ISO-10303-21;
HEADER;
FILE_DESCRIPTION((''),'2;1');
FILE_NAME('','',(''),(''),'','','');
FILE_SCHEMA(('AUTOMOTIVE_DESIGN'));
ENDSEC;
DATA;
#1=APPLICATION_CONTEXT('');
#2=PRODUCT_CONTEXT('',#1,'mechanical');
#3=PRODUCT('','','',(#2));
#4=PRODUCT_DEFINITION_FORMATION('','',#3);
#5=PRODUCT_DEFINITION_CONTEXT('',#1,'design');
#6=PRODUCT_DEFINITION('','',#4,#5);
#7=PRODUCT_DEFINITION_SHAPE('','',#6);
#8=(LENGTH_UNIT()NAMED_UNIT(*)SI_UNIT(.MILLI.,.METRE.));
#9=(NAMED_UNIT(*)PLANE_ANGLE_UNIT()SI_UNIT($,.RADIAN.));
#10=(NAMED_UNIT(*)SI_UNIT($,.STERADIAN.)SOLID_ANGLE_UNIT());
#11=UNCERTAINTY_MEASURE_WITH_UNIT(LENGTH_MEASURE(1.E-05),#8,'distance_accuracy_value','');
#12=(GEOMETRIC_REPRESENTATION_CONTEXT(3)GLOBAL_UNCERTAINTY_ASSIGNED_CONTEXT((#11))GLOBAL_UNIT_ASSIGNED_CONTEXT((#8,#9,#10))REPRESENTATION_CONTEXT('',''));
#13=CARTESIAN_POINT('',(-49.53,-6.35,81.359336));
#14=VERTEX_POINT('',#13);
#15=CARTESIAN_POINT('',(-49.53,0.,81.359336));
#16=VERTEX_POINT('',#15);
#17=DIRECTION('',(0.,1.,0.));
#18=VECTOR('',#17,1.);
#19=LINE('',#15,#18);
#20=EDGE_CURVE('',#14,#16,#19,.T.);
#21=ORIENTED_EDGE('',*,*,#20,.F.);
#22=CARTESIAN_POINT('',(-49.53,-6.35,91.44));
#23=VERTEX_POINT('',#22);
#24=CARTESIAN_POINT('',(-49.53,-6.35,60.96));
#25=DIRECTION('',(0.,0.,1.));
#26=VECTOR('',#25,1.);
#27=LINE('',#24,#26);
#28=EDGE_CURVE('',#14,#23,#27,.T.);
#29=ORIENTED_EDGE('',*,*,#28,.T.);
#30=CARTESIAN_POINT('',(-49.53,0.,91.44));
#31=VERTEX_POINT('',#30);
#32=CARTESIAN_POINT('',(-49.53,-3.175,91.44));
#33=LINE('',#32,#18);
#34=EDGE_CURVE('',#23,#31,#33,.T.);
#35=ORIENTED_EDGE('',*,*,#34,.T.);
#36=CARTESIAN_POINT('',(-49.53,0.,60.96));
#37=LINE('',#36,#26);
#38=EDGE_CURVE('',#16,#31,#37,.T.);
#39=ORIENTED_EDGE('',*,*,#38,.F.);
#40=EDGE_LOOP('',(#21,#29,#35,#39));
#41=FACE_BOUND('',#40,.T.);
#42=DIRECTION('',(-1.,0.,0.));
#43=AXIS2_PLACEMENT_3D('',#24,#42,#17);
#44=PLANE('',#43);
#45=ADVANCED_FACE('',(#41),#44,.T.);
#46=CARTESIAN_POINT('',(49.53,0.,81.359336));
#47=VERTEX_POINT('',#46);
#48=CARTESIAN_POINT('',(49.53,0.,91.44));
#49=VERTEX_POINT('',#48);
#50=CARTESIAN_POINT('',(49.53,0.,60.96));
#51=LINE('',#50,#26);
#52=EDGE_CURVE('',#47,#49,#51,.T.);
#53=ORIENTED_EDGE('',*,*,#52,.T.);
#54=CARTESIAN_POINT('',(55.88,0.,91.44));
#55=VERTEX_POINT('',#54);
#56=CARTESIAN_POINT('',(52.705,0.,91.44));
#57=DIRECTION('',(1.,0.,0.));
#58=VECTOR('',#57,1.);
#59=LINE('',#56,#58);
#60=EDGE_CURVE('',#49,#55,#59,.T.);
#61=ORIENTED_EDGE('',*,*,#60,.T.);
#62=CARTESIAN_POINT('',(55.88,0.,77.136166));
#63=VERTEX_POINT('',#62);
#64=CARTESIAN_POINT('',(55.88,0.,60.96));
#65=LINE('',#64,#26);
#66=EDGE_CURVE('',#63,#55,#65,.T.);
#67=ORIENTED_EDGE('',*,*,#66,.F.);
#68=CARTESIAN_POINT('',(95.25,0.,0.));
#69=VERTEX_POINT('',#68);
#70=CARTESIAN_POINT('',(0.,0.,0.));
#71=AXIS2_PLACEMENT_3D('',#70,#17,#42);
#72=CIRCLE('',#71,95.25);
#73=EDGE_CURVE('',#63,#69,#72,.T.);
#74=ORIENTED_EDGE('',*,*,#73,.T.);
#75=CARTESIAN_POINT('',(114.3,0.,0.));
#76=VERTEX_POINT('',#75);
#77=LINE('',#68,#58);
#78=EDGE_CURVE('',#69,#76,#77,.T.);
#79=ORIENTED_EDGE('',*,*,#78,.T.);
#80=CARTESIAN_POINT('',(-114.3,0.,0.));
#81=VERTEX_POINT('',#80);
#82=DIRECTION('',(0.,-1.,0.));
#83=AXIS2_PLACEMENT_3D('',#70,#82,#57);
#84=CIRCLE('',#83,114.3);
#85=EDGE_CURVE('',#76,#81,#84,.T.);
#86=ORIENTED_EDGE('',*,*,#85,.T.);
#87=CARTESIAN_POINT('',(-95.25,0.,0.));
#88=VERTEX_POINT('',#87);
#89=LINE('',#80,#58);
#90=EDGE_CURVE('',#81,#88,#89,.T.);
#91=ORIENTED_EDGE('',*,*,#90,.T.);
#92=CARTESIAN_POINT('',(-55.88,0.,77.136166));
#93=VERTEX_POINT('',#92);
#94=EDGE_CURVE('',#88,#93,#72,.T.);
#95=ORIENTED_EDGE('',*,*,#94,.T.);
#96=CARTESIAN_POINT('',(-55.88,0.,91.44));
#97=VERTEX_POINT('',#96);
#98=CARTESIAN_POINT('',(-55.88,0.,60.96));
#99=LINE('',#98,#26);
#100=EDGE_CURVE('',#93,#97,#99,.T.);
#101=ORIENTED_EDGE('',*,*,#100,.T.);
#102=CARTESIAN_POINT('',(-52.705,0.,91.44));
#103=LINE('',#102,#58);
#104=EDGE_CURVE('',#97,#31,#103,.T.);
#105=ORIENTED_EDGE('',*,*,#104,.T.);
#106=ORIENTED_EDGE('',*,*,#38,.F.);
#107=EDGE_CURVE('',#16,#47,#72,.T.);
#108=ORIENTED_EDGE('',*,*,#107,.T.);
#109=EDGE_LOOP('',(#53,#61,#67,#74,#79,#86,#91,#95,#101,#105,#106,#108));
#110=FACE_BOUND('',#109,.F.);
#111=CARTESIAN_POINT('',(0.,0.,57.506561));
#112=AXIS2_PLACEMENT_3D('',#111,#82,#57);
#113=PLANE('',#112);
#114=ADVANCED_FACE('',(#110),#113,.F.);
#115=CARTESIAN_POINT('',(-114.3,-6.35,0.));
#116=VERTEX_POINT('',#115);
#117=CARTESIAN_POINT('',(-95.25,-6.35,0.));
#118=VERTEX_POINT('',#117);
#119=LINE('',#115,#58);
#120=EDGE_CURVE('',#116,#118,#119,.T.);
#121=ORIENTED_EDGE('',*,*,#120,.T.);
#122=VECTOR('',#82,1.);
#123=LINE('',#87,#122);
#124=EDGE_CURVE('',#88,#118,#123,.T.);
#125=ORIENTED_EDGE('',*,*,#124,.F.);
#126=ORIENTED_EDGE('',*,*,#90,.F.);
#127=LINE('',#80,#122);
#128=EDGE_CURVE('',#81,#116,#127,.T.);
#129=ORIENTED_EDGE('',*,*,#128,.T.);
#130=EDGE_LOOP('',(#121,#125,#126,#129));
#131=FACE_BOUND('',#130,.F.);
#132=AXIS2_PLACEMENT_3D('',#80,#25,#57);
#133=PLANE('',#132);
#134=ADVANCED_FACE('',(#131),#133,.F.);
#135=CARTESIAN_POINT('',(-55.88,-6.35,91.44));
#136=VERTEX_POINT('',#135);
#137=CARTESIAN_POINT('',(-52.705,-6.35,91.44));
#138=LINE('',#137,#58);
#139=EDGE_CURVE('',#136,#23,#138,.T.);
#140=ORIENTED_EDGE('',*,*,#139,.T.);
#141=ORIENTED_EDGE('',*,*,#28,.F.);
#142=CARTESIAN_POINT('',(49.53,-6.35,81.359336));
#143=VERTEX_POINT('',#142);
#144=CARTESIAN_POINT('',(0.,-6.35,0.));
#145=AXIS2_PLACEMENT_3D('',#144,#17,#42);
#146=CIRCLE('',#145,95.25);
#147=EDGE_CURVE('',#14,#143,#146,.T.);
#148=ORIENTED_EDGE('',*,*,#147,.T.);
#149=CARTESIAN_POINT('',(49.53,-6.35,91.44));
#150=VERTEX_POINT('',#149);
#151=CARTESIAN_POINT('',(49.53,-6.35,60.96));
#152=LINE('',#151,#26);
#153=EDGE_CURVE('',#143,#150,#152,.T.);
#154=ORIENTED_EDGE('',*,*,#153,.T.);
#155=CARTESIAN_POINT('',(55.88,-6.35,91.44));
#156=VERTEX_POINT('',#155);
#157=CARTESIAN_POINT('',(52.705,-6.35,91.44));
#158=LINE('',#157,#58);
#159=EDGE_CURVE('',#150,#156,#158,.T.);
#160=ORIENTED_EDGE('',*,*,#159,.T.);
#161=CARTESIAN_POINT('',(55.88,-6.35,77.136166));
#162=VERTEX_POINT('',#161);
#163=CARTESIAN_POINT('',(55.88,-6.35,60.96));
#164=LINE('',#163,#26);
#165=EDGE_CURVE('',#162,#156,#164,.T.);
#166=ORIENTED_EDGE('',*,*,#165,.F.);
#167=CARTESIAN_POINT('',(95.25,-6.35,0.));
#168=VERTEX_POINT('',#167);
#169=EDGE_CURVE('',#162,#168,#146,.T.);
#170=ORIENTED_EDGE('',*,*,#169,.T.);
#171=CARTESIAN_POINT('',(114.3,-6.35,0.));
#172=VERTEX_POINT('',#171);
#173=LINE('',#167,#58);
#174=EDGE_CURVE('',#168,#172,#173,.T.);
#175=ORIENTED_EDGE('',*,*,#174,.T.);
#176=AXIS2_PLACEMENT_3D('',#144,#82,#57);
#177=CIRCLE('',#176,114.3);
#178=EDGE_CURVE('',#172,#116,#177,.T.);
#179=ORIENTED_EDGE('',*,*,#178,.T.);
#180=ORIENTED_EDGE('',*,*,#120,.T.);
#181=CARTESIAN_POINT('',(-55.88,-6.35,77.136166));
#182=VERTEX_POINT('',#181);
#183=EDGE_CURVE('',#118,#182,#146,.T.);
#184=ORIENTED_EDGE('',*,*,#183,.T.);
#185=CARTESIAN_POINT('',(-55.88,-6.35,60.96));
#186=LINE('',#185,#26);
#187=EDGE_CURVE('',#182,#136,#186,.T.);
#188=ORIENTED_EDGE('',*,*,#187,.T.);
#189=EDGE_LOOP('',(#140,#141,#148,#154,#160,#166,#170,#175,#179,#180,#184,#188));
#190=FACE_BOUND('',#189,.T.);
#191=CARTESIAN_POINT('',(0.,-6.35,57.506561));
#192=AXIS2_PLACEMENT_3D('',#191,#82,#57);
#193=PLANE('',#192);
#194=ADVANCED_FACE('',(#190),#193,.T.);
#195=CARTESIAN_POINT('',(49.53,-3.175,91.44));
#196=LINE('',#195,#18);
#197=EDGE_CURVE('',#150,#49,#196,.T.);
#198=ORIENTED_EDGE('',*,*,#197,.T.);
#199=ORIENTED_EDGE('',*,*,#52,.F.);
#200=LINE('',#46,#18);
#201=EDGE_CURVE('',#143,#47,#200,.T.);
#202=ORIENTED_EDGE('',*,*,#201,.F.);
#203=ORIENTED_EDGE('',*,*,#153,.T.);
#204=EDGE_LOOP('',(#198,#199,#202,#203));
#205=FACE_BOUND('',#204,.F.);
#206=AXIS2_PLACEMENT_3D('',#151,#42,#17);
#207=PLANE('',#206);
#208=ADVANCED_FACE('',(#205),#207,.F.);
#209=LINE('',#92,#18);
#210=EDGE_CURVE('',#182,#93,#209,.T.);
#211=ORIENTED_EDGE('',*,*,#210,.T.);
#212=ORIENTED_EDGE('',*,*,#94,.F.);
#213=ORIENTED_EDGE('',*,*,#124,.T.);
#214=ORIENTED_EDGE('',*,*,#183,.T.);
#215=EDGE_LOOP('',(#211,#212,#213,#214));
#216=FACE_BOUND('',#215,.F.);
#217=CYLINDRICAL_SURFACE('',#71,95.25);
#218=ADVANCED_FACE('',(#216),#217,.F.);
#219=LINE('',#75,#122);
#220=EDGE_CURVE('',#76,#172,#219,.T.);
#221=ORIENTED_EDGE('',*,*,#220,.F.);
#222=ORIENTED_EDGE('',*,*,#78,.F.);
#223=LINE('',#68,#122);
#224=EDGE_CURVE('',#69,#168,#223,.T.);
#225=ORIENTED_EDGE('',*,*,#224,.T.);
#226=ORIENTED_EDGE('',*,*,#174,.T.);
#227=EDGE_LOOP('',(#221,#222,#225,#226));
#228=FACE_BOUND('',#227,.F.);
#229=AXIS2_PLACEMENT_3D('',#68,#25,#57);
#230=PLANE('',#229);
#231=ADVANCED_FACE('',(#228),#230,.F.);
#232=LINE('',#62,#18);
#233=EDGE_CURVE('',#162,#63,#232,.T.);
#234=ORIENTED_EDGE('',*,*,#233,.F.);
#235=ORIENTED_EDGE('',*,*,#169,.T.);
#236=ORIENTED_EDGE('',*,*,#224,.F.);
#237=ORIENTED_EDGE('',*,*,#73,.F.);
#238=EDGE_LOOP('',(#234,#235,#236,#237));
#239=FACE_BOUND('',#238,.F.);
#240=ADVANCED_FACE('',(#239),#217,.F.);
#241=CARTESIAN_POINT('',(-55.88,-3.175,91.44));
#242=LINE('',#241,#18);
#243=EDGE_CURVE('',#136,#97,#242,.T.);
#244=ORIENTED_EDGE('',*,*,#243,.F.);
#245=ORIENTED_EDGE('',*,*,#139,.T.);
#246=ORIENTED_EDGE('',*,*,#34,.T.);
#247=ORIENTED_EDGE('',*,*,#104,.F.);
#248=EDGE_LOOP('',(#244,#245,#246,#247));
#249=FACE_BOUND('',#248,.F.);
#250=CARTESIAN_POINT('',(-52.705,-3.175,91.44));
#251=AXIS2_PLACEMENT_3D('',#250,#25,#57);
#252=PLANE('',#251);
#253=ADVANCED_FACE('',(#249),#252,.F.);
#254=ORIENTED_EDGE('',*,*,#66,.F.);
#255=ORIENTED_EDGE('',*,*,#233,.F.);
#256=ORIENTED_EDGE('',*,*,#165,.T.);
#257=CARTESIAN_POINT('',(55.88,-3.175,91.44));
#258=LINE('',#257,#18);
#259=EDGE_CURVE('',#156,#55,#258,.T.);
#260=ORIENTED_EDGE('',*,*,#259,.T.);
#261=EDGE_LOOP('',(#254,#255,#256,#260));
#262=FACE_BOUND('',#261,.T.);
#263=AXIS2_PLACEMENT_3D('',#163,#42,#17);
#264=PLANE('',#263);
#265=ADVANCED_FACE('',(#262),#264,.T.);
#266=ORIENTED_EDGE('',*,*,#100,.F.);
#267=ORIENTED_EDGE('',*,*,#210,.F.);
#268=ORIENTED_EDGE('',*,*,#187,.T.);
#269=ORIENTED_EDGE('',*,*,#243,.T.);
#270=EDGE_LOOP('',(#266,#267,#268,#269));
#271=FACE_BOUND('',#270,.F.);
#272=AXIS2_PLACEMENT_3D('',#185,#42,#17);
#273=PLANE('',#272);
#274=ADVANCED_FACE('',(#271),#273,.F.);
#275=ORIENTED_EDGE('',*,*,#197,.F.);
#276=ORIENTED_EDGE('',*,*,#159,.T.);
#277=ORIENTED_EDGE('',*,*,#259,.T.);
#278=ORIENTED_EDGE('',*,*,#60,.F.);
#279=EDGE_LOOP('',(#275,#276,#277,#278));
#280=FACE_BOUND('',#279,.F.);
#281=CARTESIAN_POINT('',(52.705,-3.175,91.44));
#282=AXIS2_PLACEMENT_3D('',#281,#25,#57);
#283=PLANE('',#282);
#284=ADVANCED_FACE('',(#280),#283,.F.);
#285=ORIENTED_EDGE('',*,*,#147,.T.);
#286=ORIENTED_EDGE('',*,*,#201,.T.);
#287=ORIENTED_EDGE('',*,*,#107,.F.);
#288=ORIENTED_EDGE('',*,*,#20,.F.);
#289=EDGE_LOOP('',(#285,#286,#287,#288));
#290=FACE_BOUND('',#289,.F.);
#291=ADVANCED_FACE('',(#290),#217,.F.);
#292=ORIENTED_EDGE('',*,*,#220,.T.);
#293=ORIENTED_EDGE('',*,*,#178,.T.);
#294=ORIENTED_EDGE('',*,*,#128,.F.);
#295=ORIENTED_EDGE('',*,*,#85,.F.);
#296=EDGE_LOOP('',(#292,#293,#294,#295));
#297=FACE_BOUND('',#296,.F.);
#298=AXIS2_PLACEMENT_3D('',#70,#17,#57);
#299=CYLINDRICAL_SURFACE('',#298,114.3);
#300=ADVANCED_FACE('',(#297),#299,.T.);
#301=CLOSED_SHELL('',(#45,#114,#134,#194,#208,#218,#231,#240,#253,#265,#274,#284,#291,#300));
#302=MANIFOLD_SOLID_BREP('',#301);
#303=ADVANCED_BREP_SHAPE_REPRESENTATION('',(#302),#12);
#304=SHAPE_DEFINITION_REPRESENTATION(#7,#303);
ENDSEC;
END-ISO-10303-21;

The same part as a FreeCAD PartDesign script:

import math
import FreeCAD as App
import Part
import Sketcher
Q = App.Units.Quantity


def add_polygon(sketch, points):
    """Adds a closed chain of lines whose ends are joined by coincident constraints."""
    first, n = sketch.GeometryCount, len(points)
    for a, b in zip(points, points[1:] + points[:1]):
        sketch.addGeometry(Part.LineSegment(App.Vector(*a, 0), App.Vector(*b, 0)), False)
    for i in range(n):
        sketch.addConstraint(Sketcher.Constraint("Coincident", first + i, 2, first + (i + 1) % n, 1))

doc = App.newDocument("Part")
body = doc.addObject("PartDesign::Body", "Body")

# Sketch on XZ plane
sketch1 = body.newObject("Sketcher::SketchObject", "Sketch")
sketch1.AttachmentSupport = (doc.getObject("XZ_Plane"), [""])
sketch1.MapMode = "FlatFace"
sketch1.addGeometry(Part.LineSegment(App.Vector(95.25, 0, 0), App.Vector(114.3, 0, 0)), False)
sketch1.addGeometry(Part.ArcOfCircle(Part.Circle(App.Vector(0, 0, 0), App.Vector(0, 0, 1), 114.3), math.radians(0), math.radians(180)), False)
sketch1.addGeometry(Part.LineSegment(App.Vector(-114.3, 0, 0), App.Vector(-95.25, 0, 0)), False)
sketch1.addGeometry(Part.ArcOfCircle(Part.Circle(App.Vector(0, 0, 0), App.Vector(0, 0, 1), 95.25), math.radians(0), math.radians(180)), False)
sketch1.addConstraint(Sketcher.Constraint("Coincident", 0, 2, 1, 1))
sketch1.addConstraint(Sketcher.Constraint("Coincident", 1, 2, 2, 1))
sketch1.addConstraint(Sketcher.Constraint("Coincident", 2, 2, 3, 2))
sketch1.addConstraint(Sketcher.Constraint("Coincident", 3, 1, 0, 1))
sketch1.addConstraint(Sketcher.Constraint("Horizontal", 0))
sketch1.addConstraint(Sketcher.Constraint("Horizontal", 2))
sketch1.addConstraint(Sketcher.Constraint("Coincident", 1, 3, -1, 1))
sketch1.addConstraint(Sketcher.Constraint("Coincident", 3, 3, -1, 1))
sketch1.addConstraint(Sketcher.Constraint("PointOnObject", 0, 2, -1))
sketch1.addConstraint(Sketcher.Constraint("PointOnObject", 1, 2, -1))
sketch1.addConstraint(Sketcher.Constraint("Radius", 1, Q("4.5 in")))
sketch1.addConstraint(Sketcher.Constraint("Radius", 3, Q("3.75 in")))
pad1 = body.newObject("PartDesign::Pad", "Pad")
pad1.Profile = sketch1
pad1.Length = Q("0.25 in")

# Sketch on XY plane
sketch2 = body.newObject("Sketcher::SketchObject", "Sketch001")
sketch2.AttachmentSupport = (doc.getObject("XY_Plane"), [""])
sketch2.MapMode = "FlatFace"
sketch2.AttachmentOffset = App.Placement(App.Vector(0, 0, 2.4 * 25.4), App.Rotation())
add_polygon(sketch2, [(-55.88, 0), (-55.88, -6.35), (-49.53, -6.35), (-49.53, 0)])  # lines 0-3
add_polygon(sketch2, [(49.53, 0), (49.53, -6.35), (55.88, -6.35), (55.88, 0)])  # lines 4-7
sketch2.addConstraint(Sketcher.Constraint("Vertical", 0))
sketch2.addConstraint(Sketcher.Constraint("Horizontal", 1))
sketch2.addConstraint(Sketcher.Constraint("Vertical", 2))
sketch2.addConstraint(Sketcher.Constraint("Horizontal", 3))
sketch2.addConstraint(Sketcher.Constraint("Vertical", 4))
sketch2.addConstraint(Sketcher.Constraint("Horizontal", 5))
sketch2.addConstraint(Sketcher.Constraint("Vertical", 6))
sketch2.addConstraint(Sketcher.Constraint("Horizontal", 7))
sketch2.addConstraint(Sketcher.Constraint("Symmetric", 3, 2, 6, 2, -1, 1))
sketch2.addConstraint(Sketcher.Constraint("Symmetric", 1, 2, 4, 2, -2))
sketch2.addConstraint(Sketcher.Constraint("PointOnObject", 2, 2, -1))
sketch2.addConstraint(Sketcher.Constraint("Equal", 7, 0))
sketch2.addConstraint(Sketcher.Constraint("DistanceX", 1, 1, 1, 2, Q("0.25 in")))
sketch2.addConstraint(Sketcher.Constraint("DistanceX", 0, 2, -1, 1, Q("2.2 in")))
pocket1 = body.newObject("PartDesign::Pocket", "Pocket")
pocket1.Profile = sketch2
pocket1.Length = Q("1.2 in")
pocket1.Reversed = True

doc.recompute()
